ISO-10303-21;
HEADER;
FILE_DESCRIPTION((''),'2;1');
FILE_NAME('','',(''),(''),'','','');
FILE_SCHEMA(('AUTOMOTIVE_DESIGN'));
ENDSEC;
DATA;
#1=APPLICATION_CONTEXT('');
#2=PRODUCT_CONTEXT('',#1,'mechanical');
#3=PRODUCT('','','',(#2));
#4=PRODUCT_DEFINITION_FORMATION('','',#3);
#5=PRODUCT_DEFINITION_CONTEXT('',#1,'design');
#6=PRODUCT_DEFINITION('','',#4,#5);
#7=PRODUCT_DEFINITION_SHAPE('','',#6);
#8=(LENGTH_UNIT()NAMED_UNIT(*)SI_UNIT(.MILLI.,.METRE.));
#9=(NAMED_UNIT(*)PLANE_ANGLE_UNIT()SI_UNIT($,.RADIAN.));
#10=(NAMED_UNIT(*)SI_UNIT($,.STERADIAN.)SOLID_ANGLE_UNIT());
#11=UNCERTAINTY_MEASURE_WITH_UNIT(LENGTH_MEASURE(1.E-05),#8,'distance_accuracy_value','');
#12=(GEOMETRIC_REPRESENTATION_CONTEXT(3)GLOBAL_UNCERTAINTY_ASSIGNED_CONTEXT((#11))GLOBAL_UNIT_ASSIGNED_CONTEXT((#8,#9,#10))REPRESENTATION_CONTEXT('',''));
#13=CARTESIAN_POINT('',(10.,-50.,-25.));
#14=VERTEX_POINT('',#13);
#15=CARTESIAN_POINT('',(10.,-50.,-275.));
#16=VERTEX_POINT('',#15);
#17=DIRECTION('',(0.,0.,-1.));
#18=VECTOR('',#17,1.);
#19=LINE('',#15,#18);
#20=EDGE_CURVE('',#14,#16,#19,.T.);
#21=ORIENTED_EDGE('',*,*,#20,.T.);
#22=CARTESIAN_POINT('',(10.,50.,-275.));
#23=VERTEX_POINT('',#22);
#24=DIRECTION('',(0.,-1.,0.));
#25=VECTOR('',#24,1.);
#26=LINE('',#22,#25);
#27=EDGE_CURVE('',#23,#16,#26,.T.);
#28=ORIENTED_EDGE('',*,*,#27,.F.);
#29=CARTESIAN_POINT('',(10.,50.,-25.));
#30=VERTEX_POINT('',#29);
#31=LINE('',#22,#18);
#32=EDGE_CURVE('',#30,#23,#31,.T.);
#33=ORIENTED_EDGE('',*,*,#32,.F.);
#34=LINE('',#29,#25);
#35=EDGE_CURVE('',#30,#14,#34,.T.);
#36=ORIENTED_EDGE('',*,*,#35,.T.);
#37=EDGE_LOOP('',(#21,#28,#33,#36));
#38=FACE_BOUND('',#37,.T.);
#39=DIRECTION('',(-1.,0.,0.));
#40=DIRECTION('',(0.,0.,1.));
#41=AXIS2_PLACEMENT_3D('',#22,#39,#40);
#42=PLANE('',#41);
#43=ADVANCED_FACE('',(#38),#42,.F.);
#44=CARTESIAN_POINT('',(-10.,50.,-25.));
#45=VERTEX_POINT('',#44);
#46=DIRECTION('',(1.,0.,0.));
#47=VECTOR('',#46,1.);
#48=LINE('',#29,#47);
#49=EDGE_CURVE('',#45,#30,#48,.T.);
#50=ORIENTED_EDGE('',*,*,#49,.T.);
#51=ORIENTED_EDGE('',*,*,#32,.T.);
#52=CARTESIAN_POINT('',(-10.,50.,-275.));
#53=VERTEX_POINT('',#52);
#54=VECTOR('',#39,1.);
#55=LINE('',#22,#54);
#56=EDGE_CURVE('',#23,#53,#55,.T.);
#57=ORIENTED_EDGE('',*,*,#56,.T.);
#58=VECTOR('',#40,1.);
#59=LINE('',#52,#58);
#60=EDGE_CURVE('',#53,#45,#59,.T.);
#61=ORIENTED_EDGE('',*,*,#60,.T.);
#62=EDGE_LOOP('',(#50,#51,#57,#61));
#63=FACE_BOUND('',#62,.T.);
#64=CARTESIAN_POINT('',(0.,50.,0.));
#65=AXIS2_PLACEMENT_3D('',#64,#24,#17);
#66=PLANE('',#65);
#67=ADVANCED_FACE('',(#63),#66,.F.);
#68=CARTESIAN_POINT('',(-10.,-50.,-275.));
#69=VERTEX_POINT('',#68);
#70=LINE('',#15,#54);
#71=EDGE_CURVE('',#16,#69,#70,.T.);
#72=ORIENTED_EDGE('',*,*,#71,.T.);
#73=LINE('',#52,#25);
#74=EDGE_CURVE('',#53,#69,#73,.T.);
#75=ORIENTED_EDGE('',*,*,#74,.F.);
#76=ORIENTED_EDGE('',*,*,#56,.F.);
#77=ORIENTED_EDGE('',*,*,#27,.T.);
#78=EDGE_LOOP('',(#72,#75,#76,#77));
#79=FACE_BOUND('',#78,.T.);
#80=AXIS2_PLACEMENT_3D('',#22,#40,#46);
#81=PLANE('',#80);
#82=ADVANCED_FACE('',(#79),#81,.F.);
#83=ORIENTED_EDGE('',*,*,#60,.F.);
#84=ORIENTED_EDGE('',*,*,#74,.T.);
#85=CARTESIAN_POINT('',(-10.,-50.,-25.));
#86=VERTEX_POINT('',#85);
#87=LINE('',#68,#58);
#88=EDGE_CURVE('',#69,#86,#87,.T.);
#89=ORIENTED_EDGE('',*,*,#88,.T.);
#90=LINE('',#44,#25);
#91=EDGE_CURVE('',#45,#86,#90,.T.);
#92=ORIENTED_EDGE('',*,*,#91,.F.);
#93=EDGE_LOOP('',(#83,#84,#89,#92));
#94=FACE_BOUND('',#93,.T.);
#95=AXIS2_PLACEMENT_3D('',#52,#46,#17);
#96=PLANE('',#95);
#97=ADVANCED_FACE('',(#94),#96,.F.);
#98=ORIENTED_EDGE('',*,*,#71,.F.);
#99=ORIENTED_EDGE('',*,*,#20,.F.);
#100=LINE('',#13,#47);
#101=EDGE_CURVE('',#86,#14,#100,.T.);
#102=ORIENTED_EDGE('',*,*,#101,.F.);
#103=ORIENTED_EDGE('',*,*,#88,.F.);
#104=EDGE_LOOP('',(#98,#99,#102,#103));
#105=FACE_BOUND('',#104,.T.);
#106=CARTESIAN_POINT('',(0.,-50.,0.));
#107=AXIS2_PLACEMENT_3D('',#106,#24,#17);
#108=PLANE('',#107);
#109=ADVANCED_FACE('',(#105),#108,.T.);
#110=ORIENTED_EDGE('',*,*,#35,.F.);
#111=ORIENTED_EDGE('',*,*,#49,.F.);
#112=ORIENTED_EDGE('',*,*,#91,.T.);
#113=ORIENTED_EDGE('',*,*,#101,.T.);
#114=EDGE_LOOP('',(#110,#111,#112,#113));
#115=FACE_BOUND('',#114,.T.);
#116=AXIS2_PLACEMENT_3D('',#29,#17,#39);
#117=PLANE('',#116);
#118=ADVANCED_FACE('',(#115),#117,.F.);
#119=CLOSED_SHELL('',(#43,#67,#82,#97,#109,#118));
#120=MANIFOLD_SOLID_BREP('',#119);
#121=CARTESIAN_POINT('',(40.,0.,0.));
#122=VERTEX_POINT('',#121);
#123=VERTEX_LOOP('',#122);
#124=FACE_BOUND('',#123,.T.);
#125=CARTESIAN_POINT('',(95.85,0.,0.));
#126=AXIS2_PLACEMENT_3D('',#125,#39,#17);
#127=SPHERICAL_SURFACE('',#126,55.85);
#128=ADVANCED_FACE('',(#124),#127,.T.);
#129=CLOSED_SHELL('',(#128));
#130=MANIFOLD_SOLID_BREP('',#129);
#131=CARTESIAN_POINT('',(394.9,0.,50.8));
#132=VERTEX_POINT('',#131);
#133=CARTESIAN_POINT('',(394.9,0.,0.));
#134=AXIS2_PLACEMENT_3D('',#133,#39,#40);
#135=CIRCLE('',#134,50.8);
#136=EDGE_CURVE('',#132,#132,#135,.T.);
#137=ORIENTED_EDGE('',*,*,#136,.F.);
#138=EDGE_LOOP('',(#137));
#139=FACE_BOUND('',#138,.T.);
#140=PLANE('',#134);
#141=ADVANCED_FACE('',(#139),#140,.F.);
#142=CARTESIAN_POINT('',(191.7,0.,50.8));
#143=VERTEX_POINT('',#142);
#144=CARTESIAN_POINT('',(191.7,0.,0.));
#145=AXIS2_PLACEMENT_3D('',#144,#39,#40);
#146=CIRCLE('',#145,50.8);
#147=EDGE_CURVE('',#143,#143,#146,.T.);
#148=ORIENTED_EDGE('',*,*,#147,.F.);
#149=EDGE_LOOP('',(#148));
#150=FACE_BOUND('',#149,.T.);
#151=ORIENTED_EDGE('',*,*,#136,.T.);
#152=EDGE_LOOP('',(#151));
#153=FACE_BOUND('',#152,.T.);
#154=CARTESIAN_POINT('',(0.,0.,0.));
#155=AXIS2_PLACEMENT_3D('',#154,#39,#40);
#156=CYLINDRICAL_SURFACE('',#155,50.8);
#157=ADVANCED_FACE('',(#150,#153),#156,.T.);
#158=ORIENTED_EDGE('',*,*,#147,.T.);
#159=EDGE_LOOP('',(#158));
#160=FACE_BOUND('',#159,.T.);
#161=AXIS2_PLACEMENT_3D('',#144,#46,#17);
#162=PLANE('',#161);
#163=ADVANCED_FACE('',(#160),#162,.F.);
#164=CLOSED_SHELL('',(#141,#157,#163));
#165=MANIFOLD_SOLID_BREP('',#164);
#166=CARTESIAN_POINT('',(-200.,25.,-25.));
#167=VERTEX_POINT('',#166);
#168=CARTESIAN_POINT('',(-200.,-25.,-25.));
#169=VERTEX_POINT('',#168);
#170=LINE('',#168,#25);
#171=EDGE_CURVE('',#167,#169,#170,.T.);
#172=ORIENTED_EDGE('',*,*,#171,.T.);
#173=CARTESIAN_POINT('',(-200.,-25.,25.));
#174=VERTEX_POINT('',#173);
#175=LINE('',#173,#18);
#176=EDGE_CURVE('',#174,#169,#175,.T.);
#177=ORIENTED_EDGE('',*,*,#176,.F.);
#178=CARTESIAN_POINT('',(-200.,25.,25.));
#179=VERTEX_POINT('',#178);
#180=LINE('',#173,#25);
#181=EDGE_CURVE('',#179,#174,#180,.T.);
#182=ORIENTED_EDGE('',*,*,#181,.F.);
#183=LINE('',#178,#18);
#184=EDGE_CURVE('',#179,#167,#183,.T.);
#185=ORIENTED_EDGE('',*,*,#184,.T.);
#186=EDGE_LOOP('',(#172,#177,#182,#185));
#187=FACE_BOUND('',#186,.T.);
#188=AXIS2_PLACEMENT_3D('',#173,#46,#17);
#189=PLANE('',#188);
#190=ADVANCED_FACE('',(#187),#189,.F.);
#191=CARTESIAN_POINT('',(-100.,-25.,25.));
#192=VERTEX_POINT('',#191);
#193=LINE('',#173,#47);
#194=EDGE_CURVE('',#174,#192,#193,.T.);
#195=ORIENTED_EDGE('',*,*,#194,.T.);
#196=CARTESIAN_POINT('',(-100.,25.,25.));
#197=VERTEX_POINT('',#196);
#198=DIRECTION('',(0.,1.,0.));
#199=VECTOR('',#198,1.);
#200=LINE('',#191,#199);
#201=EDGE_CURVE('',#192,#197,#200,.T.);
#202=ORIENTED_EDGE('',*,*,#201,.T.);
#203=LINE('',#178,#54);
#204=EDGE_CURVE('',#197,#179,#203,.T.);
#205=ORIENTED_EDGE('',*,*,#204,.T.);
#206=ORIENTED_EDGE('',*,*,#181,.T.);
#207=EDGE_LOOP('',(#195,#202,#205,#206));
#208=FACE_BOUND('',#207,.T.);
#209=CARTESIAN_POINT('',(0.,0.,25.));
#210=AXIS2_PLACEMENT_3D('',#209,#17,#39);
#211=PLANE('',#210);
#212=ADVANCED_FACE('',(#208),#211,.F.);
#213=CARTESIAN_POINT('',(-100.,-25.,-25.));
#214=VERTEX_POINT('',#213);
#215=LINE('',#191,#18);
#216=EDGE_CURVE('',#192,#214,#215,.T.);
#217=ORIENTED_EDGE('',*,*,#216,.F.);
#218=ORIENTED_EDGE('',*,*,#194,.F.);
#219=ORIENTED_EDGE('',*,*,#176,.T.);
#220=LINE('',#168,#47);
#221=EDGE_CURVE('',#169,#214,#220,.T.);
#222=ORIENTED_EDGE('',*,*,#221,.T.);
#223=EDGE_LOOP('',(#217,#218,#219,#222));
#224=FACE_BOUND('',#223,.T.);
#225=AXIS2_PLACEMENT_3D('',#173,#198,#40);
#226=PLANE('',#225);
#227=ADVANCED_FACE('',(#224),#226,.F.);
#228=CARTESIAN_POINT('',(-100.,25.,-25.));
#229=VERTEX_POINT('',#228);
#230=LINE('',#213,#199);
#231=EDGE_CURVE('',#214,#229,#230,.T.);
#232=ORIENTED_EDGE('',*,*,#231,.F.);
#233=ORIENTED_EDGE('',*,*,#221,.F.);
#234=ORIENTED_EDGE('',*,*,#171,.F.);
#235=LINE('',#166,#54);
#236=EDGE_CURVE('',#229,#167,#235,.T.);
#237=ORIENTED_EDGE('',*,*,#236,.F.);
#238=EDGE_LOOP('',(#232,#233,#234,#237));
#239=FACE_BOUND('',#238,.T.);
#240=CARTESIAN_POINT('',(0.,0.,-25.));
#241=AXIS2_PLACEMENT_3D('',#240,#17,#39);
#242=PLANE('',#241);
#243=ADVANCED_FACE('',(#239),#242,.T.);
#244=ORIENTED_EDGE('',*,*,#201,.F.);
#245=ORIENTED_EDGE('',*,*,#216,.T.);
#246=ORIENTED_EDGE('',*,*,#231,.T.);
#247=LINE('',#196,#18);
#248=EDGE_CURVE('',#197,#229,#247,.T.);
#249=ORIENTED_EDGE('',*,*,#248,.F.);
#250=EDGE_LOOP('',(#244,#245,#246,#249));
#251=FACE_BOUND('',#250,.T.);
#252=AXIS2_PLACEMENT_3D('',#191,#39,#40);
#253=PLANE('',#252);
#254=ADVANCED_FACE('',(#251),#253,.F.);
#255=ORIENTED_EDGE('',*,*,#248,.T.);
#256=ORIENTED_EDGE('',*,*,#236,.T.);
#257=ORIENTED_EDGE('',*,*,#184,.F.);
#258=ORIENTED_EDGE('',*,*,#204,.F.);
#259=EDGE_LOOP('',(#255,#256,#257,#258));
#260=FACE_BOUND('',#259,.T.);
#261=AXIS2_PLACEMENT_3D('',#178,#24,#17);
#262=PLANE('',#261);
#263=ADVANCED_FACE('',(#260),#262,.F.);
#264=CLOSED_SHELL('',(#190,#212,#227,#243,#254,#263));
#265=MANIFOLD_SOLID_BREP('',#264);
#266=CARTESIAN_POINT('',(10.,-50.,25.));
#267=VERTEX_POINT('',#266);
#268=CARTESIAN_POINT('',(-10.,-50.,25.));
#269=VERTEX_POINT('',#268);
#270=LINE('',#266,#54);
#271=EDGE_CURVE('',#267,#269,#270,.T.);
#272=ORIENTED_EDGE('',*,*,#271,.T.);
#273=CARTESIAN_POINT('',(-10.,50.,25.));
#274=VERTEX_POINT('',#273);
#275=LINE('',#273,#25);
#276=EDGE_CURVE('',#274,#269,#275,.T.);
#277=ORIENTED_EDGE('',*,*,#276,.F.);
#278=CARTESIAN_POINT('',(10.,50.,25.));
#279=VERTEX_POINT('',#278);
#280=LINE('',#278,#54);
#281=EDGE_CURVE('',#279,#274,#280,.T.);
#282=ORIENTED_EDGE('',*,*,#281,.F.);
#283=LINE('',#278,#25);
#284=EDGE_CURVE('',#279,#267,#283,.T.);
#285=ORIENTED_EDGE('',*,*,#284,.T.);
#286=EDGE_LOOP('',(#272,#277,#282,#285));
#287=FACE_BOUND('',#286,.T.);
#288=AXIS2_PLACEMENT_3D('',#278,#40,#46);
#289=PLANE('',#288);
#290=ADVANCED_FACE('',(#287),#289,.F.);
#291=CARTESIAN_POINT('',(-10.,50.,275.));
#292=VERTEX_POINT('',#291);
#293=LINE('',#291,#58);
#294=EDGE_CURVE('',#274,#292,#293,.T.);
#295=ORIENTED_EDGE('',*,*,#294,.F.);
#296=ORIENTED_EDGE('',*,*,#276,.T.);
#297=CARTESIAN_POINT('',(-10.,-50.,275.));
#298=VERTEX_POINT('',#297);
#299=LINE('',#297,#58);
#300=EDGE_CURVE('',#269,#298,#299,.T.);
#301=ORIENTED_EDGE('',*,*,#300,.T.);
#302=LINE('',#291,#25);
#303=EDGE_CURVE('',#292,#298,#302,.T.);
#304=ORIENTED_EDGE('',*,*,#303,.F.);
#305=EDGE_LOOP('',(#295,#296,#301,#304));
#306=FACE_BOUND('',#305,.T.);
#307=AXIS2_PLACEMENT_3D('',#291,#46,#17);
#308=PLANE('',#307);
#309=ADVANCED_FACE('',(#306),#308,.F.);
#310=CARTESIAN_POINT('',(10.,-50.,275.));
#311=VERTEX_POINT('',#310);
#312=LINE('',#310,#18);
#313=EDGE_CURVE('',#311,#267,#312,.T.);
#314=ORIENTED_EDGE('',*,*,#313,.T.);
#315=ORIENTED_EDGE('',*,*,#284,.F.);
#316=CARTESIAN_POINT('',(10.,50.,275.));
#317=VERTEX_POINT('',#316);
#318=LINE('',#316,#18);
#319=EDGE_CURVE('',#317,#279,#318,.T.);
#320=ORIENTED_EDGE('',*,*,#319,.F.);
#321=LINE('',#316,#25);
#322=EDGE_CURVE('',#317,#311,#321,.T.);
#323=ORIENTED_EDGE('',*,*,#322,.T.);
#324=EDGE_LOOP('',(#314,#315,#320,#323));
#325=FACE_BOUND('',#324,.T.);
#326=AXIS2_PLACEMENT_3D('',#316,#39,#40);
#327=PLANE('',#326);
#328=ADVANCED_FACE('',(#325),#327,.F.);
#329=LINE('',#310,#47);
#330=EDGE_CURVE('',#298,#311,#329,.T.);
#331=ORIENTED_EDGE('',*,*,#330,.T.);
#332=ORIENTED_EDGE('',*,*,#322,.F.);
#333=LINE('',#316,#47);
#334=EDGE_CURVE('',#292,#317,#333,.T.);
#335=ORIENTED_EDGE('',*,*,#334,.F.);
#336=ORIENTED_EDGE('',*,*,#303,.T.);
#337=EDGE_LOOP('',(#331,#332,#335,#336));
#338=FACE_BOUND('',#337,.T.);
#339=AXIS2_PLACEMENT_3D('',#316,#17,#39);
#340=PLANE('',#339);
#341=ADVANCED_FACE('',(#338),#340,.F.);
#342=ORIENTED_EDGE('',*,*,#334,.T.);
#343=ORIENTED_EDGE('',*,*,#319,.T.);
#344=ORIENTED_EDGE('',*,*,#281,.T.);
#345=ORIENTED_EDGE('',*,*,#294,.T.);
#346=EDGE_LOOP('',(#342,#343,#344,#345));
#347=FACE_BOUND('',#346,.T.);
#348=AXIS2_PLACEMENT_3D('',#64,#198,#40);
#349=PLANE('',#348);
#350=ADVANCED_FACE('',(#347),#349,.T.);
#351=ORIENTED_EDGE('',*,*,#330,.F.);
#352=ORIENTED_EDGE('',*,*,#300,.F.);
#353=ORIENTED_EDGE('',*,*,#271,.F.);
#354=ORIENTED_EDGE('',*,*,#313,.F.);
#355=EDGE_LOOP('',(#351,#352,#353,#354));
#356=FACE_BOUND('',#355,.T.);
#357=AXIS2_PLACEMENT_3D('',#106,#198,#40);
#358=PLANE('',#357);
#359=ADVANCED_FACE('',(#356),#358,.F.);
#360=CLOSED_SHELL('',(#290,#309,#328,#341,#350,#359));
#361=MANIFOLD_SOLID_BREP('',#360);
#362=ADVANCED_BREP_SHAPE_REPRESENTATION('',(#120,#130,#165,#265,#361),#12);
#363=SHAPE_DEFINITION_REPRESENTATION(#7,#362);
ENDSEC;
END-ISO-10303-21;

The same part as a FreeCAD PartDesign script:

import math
import FreeCAD as App
import Part
import Sketcher

doc = App.newDocument("Part")
body = doc.addObject("PartDesign::Body", "Body")

sketch1 = body.newObject("Sketcher::SketchObject", "Sketch")
sketch1.AttachmentSupport = (doc.getObject("XY_Plane"), [""])
sketch1.MapMode = "FlatFace"
sketch1.addGeometry(Part.LineSegment(App.Vector(-200, 25, 0), App.Vector(-200, -25, 0)), False)
sketch1.addGeometry(Part.LineSegment(App.Vector(-200, -25, 0), App.Vector(-100, -25, 0)), False)
sketch1.addGeometry(Part.LineSegment(App.Vector(-100, -25, 0), App.Vector(-100, 25, 0)), False)
sketch1.addGeometry(Part.LineSegment(App.Vector(-100, 25, 0), App.Vector(-200, 25, 0)), False)
sketch1.addConstraint(Sketcher.Constraint("Coincident", 0, 2, 1, 1))
sketch1.addConstraint(Sketcher.Constraint("Coincident", 1, 2, 2, 1))
sketch1.addConstraint(Sketcher.Constraint("Coincident", 2, 2, 3, 1))
sketch1.addConstraint(Sketcher.Constraint("Coincident", 3, 2, 0, 1))
sketch1.addConstraint(Sketcher.Constraint("Vertical", 0))
sketch1.addConstraint(Sketcher.Constraint("Horizontal", 1))
sketch1.addConstraint(Sketcher.Constraint("Vertical", 2))
sketch1.addConstraint(Sketcher.Constraint("Horizontal", 3))
sketch1.addConstraint(Sketcher.Constraint("DistanceX", 1, 1, 1, 2, 100.0))
sketch1.addConstraint(Sketcher.Constraint("DistanceY", 0, 2, 0, 1, 50.0))
sketch1.addConstraint(Sketcher.Constraint("DistanceX", 0, 2, -1, 1, 200.0))
sketch1.addConstraint(Sketcher.Constraint("DistanceY", 0, 2, -1, 1, 25.0))
pad1 = body.newObject("PartDesign::Pad", "Pad")
pad1.Profile = sketch1
pad1.Length = 50
pad1.Midplane = True
body2 = doc.addObject("PartDesign::Body", "Body001")
body2.AllowCompound = True

sketch2 = body2.newObject("Sketcher::SketchObject", "Sketch001")
sketch2.AttachmentSupport = (doc.getObject("XZ_Plane001"), [""])
sketch2.MapMode = "FlatFace"
sketch2.addGeometry(Part.LineSegment(App.Vector(40, 0, 0), App.Vector(151.7, 0, 0)), False)
sketch2.addGeometry(Part.ArcOfCircle(Part.Circle(App.Vector(95.85, 0, 0), App.Vector(0, 0, 1), 55.85), math.radians(180), math.radians(360)), False)
sketch2.addGeometry(Part.LineSegment(App.Vector(191.7, -50.8, 0), App.Vector(191.7, 0, 0)), False)
sketch2.addGeometry(Part.LineSegment(App.Vector(191.7, 0, 0), App.Vector(394.9, 0, 0)), False)
sketch2.addGeometry(Part.LineSegment(App.Vector(394.9, 0, 0), App.Vector(394.9, -50.8, 0)), False)
sketch2.addGeometry(Part.LineSegment(App.Vector(394.9, -50.8, 0), App.Vector(191.7, -50.8, 0)), False)
sketch2.addConstraint(Sketcher.Constraint("Coincident", 0, 1, 1, 1))
sketch2.addConstraint(Sketcher.Constraint("Coincident", 1, 2, 0, 2))
sketch2.addConstraint(Sketcher.Constraint("Coincident", 2, 2, 3, 1))
sketch2.addConstraint(Sketcher.Constraint("Coincident", 3, 2, 4, 1))
sketch2.addConstraint(Sketcher.Constraint("Coincident", 4, 2, 5, 1))
sketch2.addConstraint(Sketcher.Constraint("Coincident", 5, 2, 2, 1))
sketch2.addConstraint(Sketcher.Constraint("Horizontal", 0))
sketch2.addConstraint(Sketcher.Constraint("Vertical", 2))
sketch2.addConstraint(Sketcher.Constraint("Horizontal", 3))
sketch2.addConstraint(Sketcher.Constraint("Vertical", 4))
sketch2.addConstraint(Sketcher.Constraint("Horizontal", 5))
sketch2.addConstraint(Sketcher.Constraint("PointOnObject", 1, 3, -1))
sketch2.addConstraint(Sketcher.Constraint("PointOnObject", 0, 1, -1))
sketch2.addConstraint(Sketcher.Constraint("PointOnObject", 2, 2, -1))
sketch2.addConstraint(Sketcher.Constraint("Radius", 1, 55.85))
sketch2.addConstraint(Sketcher.Constraint("DistanceX", 3, 1, 3, 2, 203.2))
sketch2.addConstraint(Sketcher.Constraint("DistanceY", 2, 1, 2, 2, 50.8))
sketch2.addConstraint(Sketcher.Constraint("DistanceX", -1, 1, 0, 1, 40.0))
sketch2.addConstraint(Sketcher.Constraint("DistanceX", 1, 2, 2, 2, 40.0))
revolution = body2.newObject("PartDesign::Revolution", "Revolution")
revolution.Profile = sketch2
revolution.ReferenceAxis = (sketch2, ["H_Axis"])
revolution.Angle = 360
body3 = doc.addObject("PartDesign::Body", "Body002")

sketch3 = body3.newObject("Sketcher::SketchObject", "Sketch002")
sketch3.AttachmentSupport = (doc.getObject("XZ_Plane002"), [""])
sketch3.MapMode = "FlatFace"
sketch3.addGeometry(Part.LineSegment(App.Vector(-10, -275, 0), App.Vector(-10, -25, 0)), False)
sketch3.addGeometry(Part.LineSegment(App.Vector(-10, -25, 0), App.Vector(10, -25, 0)), False)
sketch3.addGeometry(Part.LineSegment(App.Vector(10, -25, 0), App.Vector(10, -275, 0)), False)
sketch3.addGeometry(Part.LineSegment(App.Vector(10, -275, 0), App.Vector(-10, -275, 0)), False)
sketch3.addConstraint(Sketcher.Constraint("Coincident", 0, 2, 1, 1))
sketch3.addConstraint(Sketcher.Constraint("Coincident", 1, 2, 2, 1))
sketch3.addConstraint(Sketcher.Constraint("Coincident", 2, 2, 3, 1))
sketch3.addConstraint(Sketcher.Constraint("Coincident", 3, 2, 0, 1))
sketch3.addConstraint(Sketcher.Constraint("Vertical", 0))
sketch3.addConstraint(Sketcher.Constraint("Horizontal", 1))
sketch3.addConstraint(Sketcher.Constraint("Vertical", 2))
sketch3.addConstraint(Sketcher.Constraint("Horizontal", 3))
sketch3.addConstraint(Sketcher.Constraint("DistanceX", 1, 1, 1, 2, 20.0))
sketch3.addConstraint(Sketcher.Constraint("DistanceY", 0, 1, 0, 2, 250.0))
sketch3.addConstraint(Sketcher.Constraint("DistanceX", 0, 2, -1, 1, 10.0))
sketch3.addConstraint(Sketcher.Constraint("DistanceY", 0, 2, -1, 1, 25.0))
pad2 = body3.newObject("PartDesign::Pad", "Pad001")
pad2.Profile = sketch3
pad2.Length = 100
pad2.Midplane = True
body4 = doc.addObject("PartDesign::Body", "Body003")

sketch4 = body4.newObject("Sketcher::SketchObject", "Sketch003")
sketch4.AttachmentSupport = (doc.getObject("XZ_Plane003"), [""])
sketch4.MapMode = "FlatFace"
sketch4.addGeometry(Part.LineSegment(App.Vector(-10, 25, 0), App.Vector(-10, 275, 0)), False)
sketch4.addGeometry(Part.LineSegment(App.Vector(-10, 275, 0), App.Vector(10, 275, 0)), False)
sketch4.addGeometry(Part.LineSegment(App.Vector(10, 275, 0), App.Vector(10, 25, 0)), False)
sketch4.addGeometry(Part.LineSegment(App.Vector(10, 25, 0), App.Vector(-10, 25, 0)), False)
sketch4.addConstraint(Sketcher.Constraint("Coincident", 0, 2, 1, 1))
sketch4.addConstraint(Sketcher.Constraint("Coincident", 1, 2, 2, 1))
sketch4.addConstraint(Sketcher.Constraint("Coincident", 2, 2, 3, 1))
sketch4.addConstraint(Sketcher.Constraint("Coincident", 3, 2, 0, 1))
sketch4.addConstraint(Sketcher.Constraint("Vertical", 0))
sketch4.addConstraint(Sketcher.Constraint("Horizontal", 1))
sketch4.addConstraint(Sketcher.Constraint("Vertical", 2))
sketch4.addConstraint(Sketcher.Constraint("Horizontal", 3))
sketch4.addConstraint(Sketcher.Constraint("DistanceX", 1, 1, 1, 2, 20.0))
sketch4.addConstraint(Sketcher.Constraint("DistanceY", 0, 1, 0, 2, 250.0))
sketch4.addConstraint(Sketcher.Constraint("DistanceX", 0, 2, -1, 1, 10.0))
sketch4.addConstraint(Sketcher.Constraint("DistanceY", -1, 1, 0, 2, 275.0))
pad3 = body4.newObject("PartDesign::Pad", "Pad002")
pad3.Profile = sketch4
pad3.Length = 100
pad3.Midplane = True

doc.recompute()
